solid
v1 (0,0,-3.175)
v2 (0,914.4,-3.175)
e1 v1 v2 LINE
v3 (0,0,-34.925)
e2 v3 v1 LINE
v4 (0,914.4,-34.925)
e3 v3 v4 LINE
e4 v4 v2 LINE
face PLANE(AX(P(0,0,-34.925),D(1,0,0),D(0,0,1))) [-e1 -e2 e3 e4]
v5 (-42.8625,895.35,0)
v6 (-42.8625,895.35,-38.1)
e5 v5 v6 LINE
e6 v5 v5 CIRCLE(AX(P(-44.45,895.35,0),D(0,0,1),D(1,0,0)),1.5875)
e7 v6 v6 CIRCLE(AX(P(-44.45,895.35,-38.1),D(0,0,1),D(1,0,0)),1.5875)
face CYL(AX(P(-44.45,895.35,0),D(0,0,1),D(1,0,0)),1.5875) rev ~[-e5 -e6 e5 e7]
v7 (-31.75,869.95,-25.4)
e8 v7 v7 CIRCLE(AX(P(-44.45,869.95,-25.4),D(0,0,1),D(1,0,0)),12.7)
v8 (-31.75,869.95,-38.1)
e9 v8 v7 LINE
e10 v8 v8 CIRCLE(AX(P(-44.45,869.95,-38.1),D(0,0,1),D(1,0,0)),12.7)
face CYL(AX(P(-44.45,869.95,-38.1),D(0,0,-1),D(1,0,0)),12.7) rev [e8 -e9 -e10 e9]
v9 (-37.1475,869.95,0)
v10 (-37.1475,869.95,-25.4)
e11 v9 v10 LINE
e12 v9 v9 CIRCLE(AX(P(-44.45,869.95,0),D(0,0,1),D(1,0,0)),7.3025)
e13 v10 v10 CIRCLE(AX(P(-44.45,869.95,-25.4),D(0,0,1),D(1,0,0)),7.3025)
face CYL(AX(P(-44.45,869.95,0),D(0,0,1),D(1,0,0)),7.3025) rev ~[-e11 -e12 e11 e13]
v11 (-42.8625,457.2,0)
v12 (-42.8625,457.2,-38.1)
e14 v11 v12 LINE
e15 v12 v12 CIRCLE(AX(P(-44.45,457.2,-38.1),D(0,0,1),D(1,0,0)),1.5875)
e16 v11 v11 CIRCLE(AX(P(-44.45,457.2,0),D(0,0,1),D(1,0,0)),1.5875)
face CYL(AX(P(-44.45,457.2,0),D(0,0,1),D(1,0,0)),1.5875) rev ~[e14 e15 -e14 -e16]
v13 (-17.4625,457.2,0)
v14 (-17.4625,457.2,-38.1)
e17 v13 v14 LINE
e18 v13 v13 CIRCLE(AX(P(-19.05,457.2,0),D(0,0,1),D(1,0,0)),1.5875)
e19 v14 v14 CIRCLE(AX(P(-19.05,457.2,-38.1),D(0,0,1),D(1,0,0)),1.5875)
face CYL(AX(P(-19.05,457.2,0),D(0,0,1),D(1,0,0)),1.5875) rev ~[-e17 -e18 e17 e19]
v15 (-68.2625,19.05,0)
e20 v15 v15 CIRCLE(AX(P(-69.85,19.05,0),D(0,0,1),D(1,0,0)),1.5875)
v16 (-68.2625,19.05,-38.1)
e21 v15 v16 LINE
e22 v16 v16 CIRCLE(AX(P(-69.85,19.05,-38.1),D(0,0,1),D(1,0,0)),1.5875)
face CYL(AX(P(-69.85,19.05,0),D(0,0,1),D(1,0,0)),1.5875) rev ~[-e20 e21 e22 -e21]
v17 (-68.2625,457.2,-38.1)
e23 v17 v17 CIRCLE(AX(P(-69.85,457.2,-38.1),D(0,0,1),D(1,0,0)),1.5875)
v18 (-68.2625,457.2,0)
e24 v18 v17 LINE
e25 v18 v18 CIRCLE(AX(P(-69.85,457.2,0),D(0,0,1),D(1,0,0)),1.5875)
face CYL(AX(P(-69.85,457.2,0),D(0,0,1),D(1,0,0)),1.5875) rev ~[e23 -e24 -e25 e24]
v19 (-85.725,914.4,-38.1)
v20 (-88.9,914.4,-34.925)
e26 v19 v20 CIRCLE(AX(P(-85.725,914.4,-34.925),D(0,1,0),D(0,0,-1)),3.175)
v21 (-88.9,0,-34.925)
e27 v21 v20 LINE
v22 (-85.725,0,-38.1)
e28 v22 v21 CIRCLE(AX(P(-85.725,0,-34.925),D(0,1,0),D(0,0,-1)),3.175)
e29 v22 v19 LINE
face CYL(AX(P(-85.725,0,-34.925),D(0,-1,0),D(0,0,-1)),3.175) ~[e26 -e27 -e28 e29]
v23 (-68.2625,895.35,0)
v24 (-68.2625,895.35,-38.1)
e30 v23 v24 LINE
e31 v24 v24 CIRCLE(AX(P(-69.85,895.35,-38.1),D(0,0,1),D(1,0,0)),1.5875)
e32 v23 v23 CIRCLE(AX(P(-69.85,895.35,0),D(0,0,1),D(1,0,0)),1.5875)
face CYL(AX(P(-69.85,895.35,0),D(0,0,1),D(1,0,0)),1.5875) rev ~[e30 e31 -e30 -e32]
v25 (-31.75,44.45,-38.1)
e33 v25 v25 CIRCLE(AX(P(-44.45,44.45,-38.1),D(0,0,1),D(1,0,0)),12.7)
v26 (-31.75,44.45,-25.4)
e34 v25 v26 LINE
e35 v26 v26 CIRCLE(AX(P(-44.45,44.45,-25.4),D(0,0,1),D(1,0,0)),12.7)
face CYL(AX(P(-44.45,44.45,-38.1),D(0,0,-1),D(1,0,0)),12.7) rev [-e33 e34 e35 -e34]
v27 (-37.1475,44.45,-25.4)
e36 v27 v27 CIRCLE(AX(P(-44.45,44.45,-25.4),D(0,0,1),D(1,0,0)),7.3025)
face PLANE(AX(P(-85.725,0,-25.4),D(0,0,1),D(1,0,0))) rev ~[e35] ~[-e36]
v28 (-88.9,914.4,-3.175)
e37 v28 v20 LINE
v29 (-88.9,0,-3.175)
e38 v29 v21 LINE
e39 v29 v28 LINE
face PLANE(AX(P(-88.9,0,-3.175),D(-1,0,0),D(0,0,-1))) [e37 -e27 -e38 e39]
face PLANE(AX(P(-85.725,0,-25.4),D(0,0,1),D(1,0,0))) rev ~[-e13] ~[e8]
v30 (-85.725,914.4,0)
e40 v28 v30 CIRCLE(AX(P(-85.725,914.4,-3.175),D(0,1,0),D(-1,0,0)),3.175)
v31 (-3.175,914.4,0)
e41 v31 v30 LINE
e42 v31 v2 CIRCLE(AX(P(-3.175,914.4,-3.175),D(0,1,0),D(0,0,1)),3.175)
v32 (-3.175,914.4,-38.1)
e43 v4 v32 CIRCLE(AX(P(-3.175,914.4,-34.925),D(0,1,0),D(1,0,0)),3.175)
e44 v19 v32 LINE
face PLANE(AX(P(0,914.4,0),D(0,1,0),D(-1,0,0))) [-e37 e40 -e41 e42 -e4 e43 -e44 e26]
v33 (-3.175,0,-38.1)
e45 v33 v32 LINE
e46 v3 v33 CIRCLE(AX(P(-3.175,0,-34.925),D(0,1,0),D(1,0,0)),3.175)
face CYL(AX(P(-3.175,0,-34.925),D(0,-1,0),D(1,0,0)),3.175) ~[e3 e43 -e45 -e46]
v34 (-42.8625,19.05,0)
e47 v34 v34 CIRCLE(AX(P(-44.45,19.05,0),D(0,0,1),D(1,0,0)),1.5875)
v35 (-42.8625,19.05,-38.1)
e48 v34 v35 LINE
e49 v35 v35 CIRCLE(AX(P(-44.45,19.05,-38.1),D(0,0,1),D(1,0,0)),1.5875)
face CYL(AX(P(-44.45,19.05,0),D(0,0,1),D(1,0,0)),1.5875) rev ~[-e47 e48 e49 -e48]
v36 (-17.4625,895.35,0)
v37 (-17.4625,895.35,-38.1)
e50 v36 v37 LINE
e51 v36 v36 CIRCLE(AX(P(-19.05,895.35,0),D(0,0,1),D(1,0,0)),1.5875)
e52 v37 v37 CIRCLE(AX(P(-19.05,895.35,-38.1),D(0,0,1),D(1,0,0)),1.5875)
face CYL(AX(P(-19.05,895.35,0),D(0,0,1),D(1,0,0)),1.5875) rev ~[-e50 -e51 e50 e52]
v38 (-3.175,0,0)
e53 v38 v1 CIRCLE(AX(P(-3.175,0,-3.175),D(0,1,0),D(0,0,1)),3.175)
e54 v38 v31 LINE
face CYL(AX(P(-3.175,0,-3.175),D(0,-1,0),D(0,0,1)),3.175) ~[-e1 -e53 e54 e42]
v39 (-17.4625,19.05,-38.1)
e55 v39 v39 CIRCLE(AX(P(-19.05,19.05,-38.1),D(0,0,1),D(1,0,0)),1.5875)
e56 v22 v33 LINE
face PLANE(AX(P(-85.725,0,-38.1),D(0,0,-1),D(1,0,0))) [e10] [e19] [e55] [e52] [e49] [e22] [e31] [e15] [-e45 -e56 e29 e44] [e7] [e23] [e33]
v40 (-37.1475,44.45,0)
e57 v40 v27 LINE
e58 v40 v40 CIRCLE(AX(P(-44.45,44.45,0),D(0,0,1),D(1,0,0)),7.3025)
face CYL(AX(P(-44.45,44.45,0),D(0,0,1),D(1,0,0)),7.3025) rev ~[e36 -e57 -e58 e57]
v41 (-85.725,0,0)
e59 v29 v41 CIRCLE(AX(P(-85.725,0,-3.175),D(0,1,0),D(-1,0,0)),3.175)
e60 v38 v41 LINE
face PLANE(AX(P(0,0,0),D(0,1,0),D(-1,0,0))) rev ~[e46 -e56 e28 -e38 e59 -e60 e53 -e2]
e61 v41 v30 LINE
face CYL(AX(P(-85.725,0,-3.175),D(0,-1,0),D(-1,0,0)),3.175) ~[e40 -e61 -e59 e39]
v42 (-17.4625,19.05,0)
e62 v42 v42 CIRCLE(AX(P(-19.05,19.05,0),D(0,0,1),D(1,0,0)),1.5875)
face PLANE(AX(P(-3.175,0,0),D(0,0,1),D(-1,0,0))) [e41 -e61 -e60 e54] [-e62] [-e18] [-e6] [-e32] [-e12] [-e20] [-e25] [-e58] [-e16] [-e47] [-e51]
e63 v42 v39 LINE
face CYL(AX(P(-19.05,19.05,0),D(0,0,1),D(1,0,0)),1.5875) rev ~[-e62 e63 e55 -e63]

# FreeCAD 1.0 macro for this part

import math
import FreeCAD as App
import Part
import Sketcher
from FreeCAD import Vector
Q = App.Units.Quantity

doc = App.newDocument("Part")
body = doc.addObject("PartDesign::Body", "Body")

sketch1 = body.newObject("Sketcher::SketchObject", "Sketch")
sketch1.AttachmentSupport = (doc.getObject("XZ_Plane"), [""])
sketch1.MapMode = "FlatFace"
sketch1.addGeometry([
    Part.LineSegment(Vector(-85.7, 0, 0), Vector(-3.2, 0, 0)),
    Part.ArcOfCircle(Part.Circle(Vector(-3.2, -3.2, 0), Vector(0, 0, 1), 3.2), math.radians(0), math.radians(90)),
    Part.LineSegment(Vector(0, -3.2, 0), Vector(0, -34.9, 0)),
    Part.ArcOfCircle(Part.Circle(Vector(-3.2, -34.9, 0), Vector(0, 0, 1), 3.2), math.radians(-90), math.radians(0)),
    Part.LineSegment(Vector(-3.2, -38.1, 0), Vector(-85.7, -38.1, 0)),
    Part.ArcOfCircle(Part.Circle(Vector(-85.7, -34.9, 0), Vector(0, 0, 1), 3.2), math.radians(180), math.radians(270)),
    Part.LineSegment(Vector(-88.9, -34.9, 0), Vector(-88.9, -3.2, 0)),
    Part.ArcOfCircle(Part.Circle(Vector(-85.7, -3.2, 0), Vector(0, 0, 1), 3.2), math.radians(90), math.radians(180)),
], False)
sketch1.addConstraint([
    Sketcher.Constraint("Tangent", 0, 2, 1, 2),
    Sketcher.Constraint("Tangent", 1, 1, 2, 1),
    Sketcher.Constraint("Tangent", 2, 2, 3, 2),
    Sketcher.Constraint("Tangent", 3, 1, 4, 1),
    Sketcher.Constraint("Tangent", 4, 2, 5, 2),
    Sketcher.Constraint("Tangent", 5, 1, 6, 1),
    Sketcher.Constraint("Tangent", 6, 2, 7, 2),
    Sketcher.Constraint("Tangent", 7, 1, 0, 1),
    Sketcher.Constraint("Horizontal", 0),
    Sketcher.Constraint("Vertical", 2),
    Sketcher.Constraint("Horizontal", 4),
    Sketcher.Constraint("Vertical", 6),
    Sketcher.Constraint("Equal", 1, 3),
    Sketcher.Constraint("Equal", 3, 5),
    Sketcher.Constraint("Equal", 5, 7),
    Sketcher.Constraint("PointOnObject", 0, 2, -1),
    Sketcher.Constraint("PointOnObject", 1, 1, -2),
    Sketcher.Constraint("Radius", 1, Q("0.125 in")),
    Sketcher.Constraint("DistanceY", 3, 1, -1, 1, Q("1.5 in")),
    Sketcher.Constraint("DistanceX", 5, 1, -1, 1, Q("3.5 in")),
])
pad1 = body.newObject("PartDesign::Pad", "Pad")
pad1.Profile = sketch1
pad1.Length = Q("36 in")
pad1.Reversed = True

sketch2 = body.newObject("Sketcher::SketchObject", "Sketch001")
sketch2.AttachmentSupport = (doc.getObject("XY_Plane"), [""])
sketch2.MapMode = "FlatFace"
sketch2.addGeometry([
    Part.Circle(Vector(-44, 44, 0), Vector(0, 0, 1), 7),
    Part.Circle(Vector(-44, 870, 0), Vector(0, 0, 1), 7),
], False)
sketch2.addConstraint([
    Sketcher.Constraint("Equal", 0, 1),
    Sketcher.Constraint("Vertical", 0, 3, 1, 3),
    Sketcher.Constraint("Diameter", 0, Q("0.575 in")),
    Sketcher.Constraint("DistanceY", 0, 3, 1, 3, Q("32.5 in")),
    Sketcher.Constraint("DistanceX", 0, 3, -1, 1, Q("1.75 in")),
    Sketcher.Constraint("DistanceY", -1, 1, 0, 3, Q("1.75 in")),
])
pocket1 = body.newObject("PartDesign::Pocket", "Pocket")
pocket1.Profile = sketch2
pocket1.Type = "ThroughAll"

sketch3 = body.newObject("Sketcher::SketchObject", "Sketch002")
sketch3.AttachmentSupport = (doc.getObject("XY_Plane"), [""])
sketch3.MapMode = "FlatFace"
sketch3.AttachmentOffset = App.Placement(Vector(0, 0, -1.5 * 25.4), App.Rotation())
sketch3.addGeometry([
    Part.Circle(Vector(-44, 44, 0), Vector(0, 0, 1), 13),
    Part.Circle(Vector(-44, 870, 0), Vector(0, 0, 1), 13),
], False)
sketch3.addConstraint([
    Sketcher.Constraint("Equal", 0, 1),
    Sketcher.Constraint("Vertical", 0, 3, 1, 3),
    Sketcher.Constraint("Diameter", 0, Q("1 in")),
    Sketcher.Constraint("DistanceY", 0, 3, 1, 3, Q("32.5 in")),
    Sketcher.Constraint("DistanceX", 0, 3, -1, 1, Q("1.75 in")),
    Sketcher.Constraint("DistanceY", -1, 1, 0, 3, Q("1.75 in")),
])
pocket2 = body.newObject("PartDesign::Pocket", "Pocket001")
pocket2.Profile = sketch3
pocket2.Length = Q("0.5 in")
pocket2.Reversed = True

sketch4 = body.newObject("Sketcher::SketchObject", "Sketch003")
sketch4.AttachmentSupport = (doc.getObject("XY_Plane"), [""])
sketch4.MapMode = "FlatFace"
sketch4.addGeometry([
    Part.Circle(Vector(-19.1, 19.1, 0), Vector(0, 0, 1), 1.6),
    Part.Circle(Vector(-69.8, 19.1, 0), Vector(0, 0, 1), 1.6),
    Part.Circle(Vector(-44.5, 19.1, 0), Vector(0, 0, 1), 1.6),
    Part.Circle(Vector(-19.1, 457.2, 0), Vector(0, 0, 1), 1.6),
    Part.Circle(Vector(-69.8, 457.2, 0), Vector(0, 0, 1), 1.6),
    Part.Circle(Vector(-44.5, 457.2, 0), Vector(0, 0, 1), 1.6),
    Part.Circle(Vector(-19.1, 895.4, 0), Vector(0, 0, 1), 1.6),
    Part.Circle(Vector(-69.8, 895.4, 0), Vector(0, 0, 1), 1.6),
    Part.Circle(Vector(-44.5, 895.4, 0), Vector(0, 0, 1), 1.6),
], False)
sketch4.addConstraint([
    Sketcher.Constraint("Equal", 0, 1),
    Sketcher.Constraint("Equal", 1, 2),
    Sketcher.Constraint("Equal", 2, 3),
    Sketcher.Constraint("Equal", 3, 4),
    Sketcher.Constraint("Equal", 4, 5),
    Sketcher.Constraint("Equal", 5, 6),
    Sketcher.Constraint("Equal", 6, 7),
    Sketcher.Constraint("Equal", 7, 8),
    Sketcher.Constraint("Horizontal", 0, 3, 1, 3),
    Sketcher.Constraint("Horizontal", 1, 3, 2, 3),
    Sketcher.Constraint("Horizontal", 3, 3, 4, 3),
    Sketcher.Constraint("Horizontal", 4, 3, 5, 3),
    Sketcher.Constraint("Horizontal", 6, 3, 7, 3),
    Sketcher.Constraint("Horizontal", 7, 3, 8, 3),
    Sketcher.Constraint("Vertical", 0, 3, 3, 3),
    Sketcher.Constraint("Vertical", 1, 3, 4, 3),
    Sketcher.Constraint("Vertical", 2, 3, 5, 3),
    Sketcher.Constraint("Vertical", 3, 3, 6, 3),
    Sketcher.Constraint("Vertical", 4, 3, 7, 3),
    Sketcher.Constraint("Vertical", 5, 3, 8, 3),
    Sketcher.Constraint("Diameter", 0, Q("0.125 in")),
    Sketcher.Constraint("DistanceY", -1, 1, 3, 3, Q("18 in")),
    Sketcher.Constraint("DistanceX", 1, 3, 0, 3, Q("2 in")),
    Sketcher.Constraint("DistanceX", 1, 3, 2, 3, Q("1 in")),
    Sketcher.Constraint("DistanceY", 0, 3, 6, 3, Q("34.5 in")),
    Sketcher.Constraint("DistanceX", 0, 3, -1, 1, Q("0.75 in")),
    Sketcher.Constraint("DistanceY", -1, 1, 0, 3, Q("0.75 in")),
])
pocket3 = body.newObject("PartDesign::Pocket", "Pocket002")
pocket3.Profile = sketch4
pocket3.Type = "ThroughAll"

doc.recompute()
